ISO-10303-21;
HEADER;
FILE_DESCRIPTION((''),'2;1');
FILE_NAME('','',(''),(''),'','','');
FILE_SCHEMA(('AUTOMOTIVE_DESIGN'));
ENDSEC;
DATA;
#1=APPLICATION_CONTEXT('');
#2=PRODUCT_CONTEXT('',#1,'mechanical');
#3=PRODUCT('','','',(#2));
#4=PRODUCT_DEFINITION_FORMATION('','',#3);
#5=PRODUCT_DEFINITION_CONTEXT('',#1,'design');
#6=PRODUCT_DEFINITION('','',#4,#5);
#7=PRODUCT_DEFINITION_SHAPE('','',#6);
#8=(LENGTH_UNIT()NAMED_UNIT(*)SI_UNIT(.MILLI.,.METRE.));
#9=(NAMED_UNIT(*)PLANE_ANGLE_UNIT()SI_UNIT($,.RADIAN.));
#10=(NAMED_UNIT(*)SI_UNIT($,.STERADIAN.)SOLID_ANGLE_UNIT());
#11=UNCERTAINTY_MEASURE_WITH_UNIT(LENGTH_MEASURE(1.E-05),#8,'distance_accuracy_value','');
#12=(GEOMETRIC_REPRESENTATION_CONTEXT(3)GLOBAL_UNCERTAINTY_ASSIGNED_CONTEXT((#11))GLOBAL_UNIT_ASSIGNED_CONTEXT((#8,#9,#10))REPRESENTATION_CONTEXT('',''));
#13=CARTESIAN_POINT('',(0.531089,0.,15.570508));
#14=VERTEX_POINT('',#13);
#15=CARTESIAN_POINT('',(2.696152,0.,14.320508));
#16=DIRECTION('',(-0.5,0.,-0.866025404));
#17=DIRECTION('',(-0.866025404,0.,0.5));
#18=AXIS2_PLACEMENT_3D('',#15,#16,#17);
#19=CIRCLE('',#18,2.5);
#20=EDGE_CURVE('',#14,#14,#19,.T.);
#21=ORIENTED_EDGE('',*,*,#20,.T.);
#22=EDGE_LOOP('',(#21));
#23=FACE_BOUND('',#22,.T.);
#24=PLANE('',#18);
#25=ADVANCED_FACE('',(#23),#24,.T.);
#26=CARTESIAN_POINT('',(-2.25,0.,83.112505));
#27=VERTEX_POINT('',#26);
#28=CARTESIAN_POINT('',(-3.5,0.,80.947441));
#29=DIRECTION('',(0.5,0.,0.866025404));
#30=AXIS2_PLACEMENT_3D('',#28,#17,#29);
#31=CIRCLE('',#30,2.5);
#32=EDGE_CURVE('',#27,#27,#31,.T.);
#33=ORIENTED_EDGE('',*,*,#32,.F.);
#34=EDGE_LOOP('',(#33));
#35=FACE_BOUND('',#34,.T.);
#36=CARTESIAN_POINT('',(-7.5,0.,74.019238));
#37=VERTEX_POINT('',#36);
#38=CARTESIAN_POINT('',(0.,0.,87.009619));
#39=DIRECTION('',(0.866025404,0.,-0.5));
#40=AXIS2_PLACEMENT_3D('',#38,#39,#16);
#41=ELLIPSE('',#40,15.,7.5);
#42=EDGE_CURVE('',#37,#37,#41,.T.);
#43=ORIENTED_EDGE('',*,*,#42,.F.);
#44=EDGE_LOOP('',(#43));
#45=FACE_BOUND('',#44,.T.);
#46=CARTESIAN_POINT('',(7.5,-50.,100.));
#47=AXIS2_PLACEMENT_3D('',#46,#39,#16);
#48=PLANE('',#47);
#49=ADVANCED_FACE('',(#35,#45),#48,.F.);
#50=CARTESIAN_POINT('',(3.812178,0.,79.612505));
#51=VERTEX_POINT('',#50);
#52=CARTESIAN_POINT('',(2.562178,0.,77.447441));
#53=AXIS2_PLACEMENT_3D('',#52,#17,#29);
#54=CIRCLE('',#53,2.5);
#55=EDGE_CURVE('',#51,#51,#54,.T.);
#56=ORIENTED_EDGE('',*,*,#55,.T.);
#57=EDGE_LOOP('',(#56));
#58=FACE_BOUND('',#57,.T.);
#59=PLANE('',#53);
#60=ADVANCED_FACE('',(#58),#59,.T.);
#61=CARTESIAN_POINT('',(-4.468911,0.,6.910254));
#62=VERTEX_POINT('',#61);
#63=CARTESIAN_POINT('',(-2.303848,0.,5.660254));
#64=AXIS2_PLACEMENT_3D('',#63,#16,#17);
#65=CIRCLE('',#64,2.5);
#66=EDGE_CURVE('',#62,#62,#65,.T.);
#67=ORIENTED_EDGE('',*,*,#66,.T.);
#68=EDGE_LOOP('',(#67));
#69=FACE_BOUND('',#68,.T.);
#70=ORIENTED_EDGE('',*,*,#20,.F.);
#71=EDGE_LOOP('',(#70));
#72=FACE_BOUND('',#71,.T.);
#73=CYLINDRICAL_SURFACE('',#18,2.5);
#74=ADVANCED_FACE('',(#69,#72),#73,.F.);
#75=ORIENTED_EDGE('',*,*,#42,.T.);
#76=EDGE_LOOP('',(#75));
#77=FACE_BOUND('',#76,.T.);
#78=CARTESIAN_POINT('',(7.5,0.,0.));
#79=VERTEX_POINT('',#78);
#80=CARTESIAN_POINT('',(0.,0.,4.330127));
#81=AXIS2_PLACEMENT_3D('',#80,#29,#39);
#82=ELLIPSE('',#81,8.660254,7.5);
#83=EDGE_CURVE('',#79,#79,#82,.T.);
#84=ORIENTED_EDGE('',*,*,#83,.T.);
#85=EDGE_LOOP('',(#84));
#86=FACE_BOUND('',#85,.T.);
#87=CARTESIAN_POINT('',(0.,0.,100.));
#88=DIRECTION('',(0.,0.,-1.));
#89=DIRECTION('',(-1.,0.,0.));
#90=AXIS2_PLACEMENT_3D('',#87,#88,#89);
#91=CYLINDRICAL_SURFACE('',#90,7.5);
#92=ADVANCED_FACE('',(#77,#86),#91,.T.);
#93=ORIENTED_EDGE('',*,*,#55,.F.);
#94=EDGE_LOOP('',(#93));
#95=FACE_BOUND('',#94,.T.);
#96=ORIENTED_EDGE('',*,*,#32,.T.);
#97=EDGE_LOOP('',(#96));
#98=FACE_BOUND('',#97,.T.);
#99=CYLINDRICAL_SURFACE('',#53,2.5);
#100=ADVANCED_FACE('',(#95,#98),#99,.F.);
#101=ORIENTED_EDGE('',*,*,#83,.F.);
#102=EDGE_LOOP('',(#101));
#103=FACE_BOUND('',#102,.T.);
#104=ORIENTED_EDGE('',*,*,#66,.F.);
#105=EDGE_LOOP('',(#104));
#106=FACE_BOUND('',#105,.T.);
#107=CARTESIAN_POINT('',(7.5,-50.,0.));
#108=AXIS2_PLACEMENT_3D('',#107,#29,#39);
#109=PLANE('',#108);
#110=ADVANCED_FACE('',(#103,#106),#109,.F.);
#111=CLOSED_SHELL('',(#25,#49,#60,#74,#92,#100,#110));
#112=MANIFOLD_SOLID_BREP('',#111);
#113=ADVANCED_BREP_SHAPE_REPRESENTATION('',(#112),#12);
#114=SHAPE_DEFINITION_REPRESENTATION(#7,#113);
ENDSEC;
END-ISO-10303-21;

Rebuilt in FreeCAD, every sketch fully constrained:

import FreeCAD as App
import Part
import Sketcher
Q = App.Units.Quantity


def add_polygon(sketch, points):
    """Adds a closed chain of lines whose ends are joined by coincident constraints."""
    first, n = sketch.GeometryCount, len(points)
    for a, b in zip(points, points[1:] + points[:1]):
        sketch.addGeometry(Part.LineSegment(App.Vector(*a, 0), App.Vector(*b, 0)), False)
    for i in range(n):
        sketch.addConstraint(Sketcher.Constraint("Coincident", first + i, 2, first + (i + 1) % n, 1))

doc = App.newDocument("Part")
body = doc.addObject("PartDesign::Body", "Body")

# Sketch on XY plane
sketch1 = doc.addObject("Sketcher::SketchObject", "Sketch")
body.addObject(sketch1)
sketch1.AttachmentSupport = (doc.XY_Plane, [""])
sketch1.MapMode = "FlatFace"
sketch1.addGeometry(Part.Circle(App.Vector(0, 0, 0), App.Vector(0, 0, 1), 8), False)
sketch1.addConstraint([
    Sketcher.Constraint("Coincident", 0, 3, -1, 1),
    Sketcher.Constraint("Diameter", 0, Q("15 mm")),
])
pad1 = doc.addObject("PartDesign::Pad", "Pad")
body.addObject(pad1)
pad1.Profile = sketch1
pad1.Length = 100

# Sketch on XZ plane
sketch2 = doc.addObject("Sketcher::SketchObject", "Sketch001")
body.addObject(sketch2)
sketch2.AttachmentSupport = (doc.XZ_Plane, [""])
sketch2.MapMode = "FlatFace"
add_polygon(sketch2, [(-17, 14), (8, 0), (8, -7), (-17, -7)])  # lines 0-3
add_polygon(sketch2, [(8, 100), (-10, 69), (-10, 109), (8, 109)])  # lines 4-7
sketch2.addConstraint([
    Sketcher.Constraint("Vertical", 1),
    Sketcher.Constraint("Horizontal", 2),
    Sketcher.Constraint("Vertical", 3),
    Sketcher.Constraint("Vertical", 5),
    Sketcher.Constraint("Horizontal", 6),
    Sketcher.Constraint("Vertical", 7),
    Sketcher.Constraint("PointOnObject", 0, 2, -1),
    Sketcher.Constraint("Perpendicular", 0, 4),
    Sketcher.Constraint("Vertical", 1, 2, 6, 2),
    Sketcher.Constraint("DistanceX", 6, 1, 6, 2, Q("18 mm")),
    Sketcher.Constraint("DistanceY", 5, 1, 5, 2, Q("40 mm")),
    Sketcher.Constraint("Angle", 0, Q("-30 deg")),
    Sketcher.Constraint("DistanceY", -1, 1, 7, 2, Q("100 mm")),
    Sketcher.Constraint("DistanceX", -1, 1, 0, 2, Q("7.5 mm")),
    Sketcher.Constraint("DistanceY", 3, 1, 3, 2, Q("20.710188 mm")),
    Sketcher.Constraint("Distance", 0, Q("27.828462 mm")),
])
pocket1 = doc.addObject("PartDesign::Pocket", "Pocket")
body.addObject(pocket1)
pocket1.Profile = sketch2
pocket1.Length = 100
pocket1.Midplane = True

# Sketch on an angled plane
sketch3 = doc.addObject("Sketcher::SketchObject", "Sketch002")
body.addObject(sketch3)
sketch3.Placement = App.Placement(App.Vector(1.875, 0, 3.247595), App.Rotation(App.Vector(-0.866025404, 0, 0.5), App.Vector(0, 1, 0), App.Vector(-0.5, 0, -0.866025404), "ZXY"))
sketch3.addGeometry(Part.Circle(App.Vector(4.8, 0, 0), App.Vector(0, 0, 1), 2.5), False)
sketch3.addConstraint([
    Sketcher.Constraint("PointOnObject", 0, 3, -1),
    Sketcher.Constraint("Diameter", 0, Q("5 mm")),
    Sketcher.Constraint("DistanceX", -1, 1, 0, 3, Q("4.825318 mm")),
])
pocket2 = doc.addObject("PartDesign::Pocket", "Pocket001")
body.addObject(pocket2)
pocket2.Profile = sketch3
pocket2.Length = 10

# Sketch on an angled plane
sketch4 = doc.addObject("Sketcher::SketchObject", "Sketch003")
body.addObject(sketch4)
sketch4.Placement = App.Placement(App.Vector(-37.67627, 0, 21.752405), App.Rotation(App.Vector(0.5, 0, 0.866025404), App.Vector(0, 1, 0), App.Vector(-0.866025404, 0, 0.5), "ZXY"))
sketch4.addGeometry(Part.Circle(App.Vector(68.4, 0, 0), App.Vector(0, 0, 1), 2.5), False)
sketch4.addConstraint([
    Sketcher.Constraint("PointOnObject", 0, 3, -1),
    Sketcher.Constraint("Diameter", 0, Q("5 mm")),
    Sketcher.Constraint("DistanceX", -1, 1, 0, 3, Q("68.35254 mm")),
])
pocket3 = doc.addObject("PartDesign::Pocket", "Pocket002")
body.addObject(pocket3)
pocket3.Profile = sketch4
pocket3.Length = 7

doc.recompute()
